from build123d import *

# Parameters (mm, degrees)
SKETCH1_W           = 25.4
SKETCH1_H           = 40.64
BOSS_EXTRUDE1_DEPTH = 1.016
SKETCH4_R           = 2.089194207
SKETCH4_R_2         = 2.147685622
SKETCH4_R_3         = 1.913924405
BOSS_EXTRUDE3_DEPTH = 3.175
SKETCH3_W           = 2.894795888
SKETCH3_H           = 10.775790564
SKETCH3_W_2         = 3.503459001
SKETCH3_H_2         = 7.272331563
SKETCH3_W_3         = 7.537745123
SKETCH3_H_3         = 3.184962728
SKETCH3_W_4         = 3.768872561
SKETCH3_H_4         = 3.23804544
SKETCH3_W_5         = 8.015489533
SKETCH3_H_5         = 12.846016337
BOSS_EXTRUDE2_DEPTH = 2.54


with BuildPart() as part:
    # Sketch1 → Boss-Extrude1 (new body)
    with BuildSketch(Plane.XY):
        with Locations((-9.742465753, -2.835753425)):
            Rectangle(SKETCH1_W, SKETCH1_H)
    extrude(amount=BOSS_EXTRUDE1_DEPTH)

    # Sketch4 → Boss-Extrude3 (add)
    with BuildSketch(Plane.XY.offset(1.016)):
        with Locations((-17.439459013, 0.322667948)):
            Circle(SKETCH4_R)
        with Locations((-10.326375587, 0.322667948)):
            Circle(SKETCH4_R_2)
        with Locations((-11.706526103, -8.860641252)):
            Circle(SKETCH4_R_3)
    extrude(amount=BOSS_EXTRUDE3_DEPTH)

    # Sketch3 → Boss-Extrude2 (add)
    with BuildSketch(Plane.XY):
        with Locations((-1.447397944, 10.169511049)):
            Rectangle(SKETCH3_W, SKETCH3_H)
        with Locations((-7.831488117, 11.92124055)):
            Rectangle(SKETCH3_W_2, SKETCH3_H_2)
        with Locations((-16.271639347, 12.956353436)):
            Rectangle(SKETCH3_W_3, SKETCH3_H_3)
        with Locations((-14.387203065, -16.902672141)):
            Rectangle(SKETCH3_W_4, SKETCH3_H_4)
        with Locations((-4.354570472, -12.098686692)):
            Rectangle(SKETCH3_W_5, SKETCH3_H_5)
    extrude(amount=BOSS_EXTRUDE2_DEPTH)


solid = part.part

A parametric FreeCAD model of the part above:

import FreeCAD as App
import Part
import Sketcher
from FreeCAD import Vector
Q = App.Units.Quantity

doc = App.newDocument("Part")
body = doc.addObject("PartDesign::Body", "Body")

sketch1 = body.newObject("Sketcher::SketchObject", "Sketch")
sketch1.AttachmentSupport = (doc.getObject("XY_Plane"), [""])
sketch1.MapMode = "FlatFace"
sketch1.addGeometry([
    Part.LineSegment(Vector(-22, 17, 0), Vector(-22, -23, 0)),
    Part.LineSegment(Vector(-22, -23, 0), Vector(3, -23, 0)),
    Part.LineSegment(Vector(3, -23, 0), Vector(3, 17, 0)),
    Part.LineSegment(Vector(3, 17, 0), Vector(-22, 17, 0)),
], False)
sketch1.addConstraint([
    Sketcher.Constraint("Coincident", 0, 2, 1, 1),
    Sketcher.Constraint("Coincident", 1, 2, 2, 1),
    Sketcher.Constraint("Coincident", 2, 2, 3, 1),
    Sketcher.Constraint("Coincident", 3, 2, 0, 1),
    Sketcher.Constraint("Vertical", 0),
    Sketcher.Constraint("Horizontal", 1),
    Sketcher.Constraint("Vertical", 2),
    Sketcher.Constraint("Horizontal", 3),
    Sketcher.Constraint("DistanceX", 1, 1, 1, 2, Q("1 in")),
    Sketcher.Constraint("DistanceY", 0, 2, 0, 1, Q("1.6 in")),
    Sketcher.Constraint("DistanceX", 0, 2, -1, 1, Q("22.442466 mm")),
    Sketcher.Constraint("DistanceY", 0, 2, -1, 1, Q("23.155753 mm")),
])
pad1 = body.newObject("PartDesign::Pad", "Pad")
pad1.Profile = sketch1
pad1.Length = Q("0.04 in")

sketch2 = body.newObject("Sketcher::SketchObject", "Sketch001")
sketch2.AttachmentSupport = (doc.getObject("XY_Plane"), [""])
sketch2.MapMode = "FlatFace"
sketch2.AttachmentOffset = App.Placement(Vector(0, 0, 0.04 * 25.4), App.Rotation())
sketch2.addGeometry([
    Part.Circle(Vector(-17.4, 0.3, 0), Vector(0, 0, 1), 2.1),
    Part.Circle(Vector(-10.3, 0.3, 0), Vector(0, 0, 1), 2.1),
    Part.Circle(Vector(-11.7, -8.9, 0), Vector(0, 0, 1), 1.9),
], False)
sketch2.addConstraint([
    Sketcher.Constraint("Horizontal", 0, 3, 1, 3),
    Sketcher.Constraint("Diameter", 0, Q("4.178388 mm")),
    Sketcher.Constraint("Diameter", 1, Q("4.295371 mm")),
    Sketcher.Constraint("Diameter", 2, Q("3.827849 mm")),
    Sketcher.Constraint("DistanceX", 0, 3, -1, 1, Q("17.439459 mm")),
    Sketcher.Constraint("DistanceY", 2, 3, -1, 1, Q("8.860641 mm")),
    Sketcher.Constraint("DistanceX", 2, 3, 1, 3, Q("1.380151 mm")),
    Sketcher.Constraint("DistanceY", 2, 3, 1, 3, Q("9.183309 mm")),
    Sketcher.Constraint("DistanceX", 1, 3, -1, 1, Q("10.326376 mm")),
])
pad2 = body.newObject("PartDesign::Pad", "Pad001")
pad2.Profile = sketch2
pad2.Length = Q("0.125 in")

sketch3 = body.newObject("Sketcher::SketchObject", "Sketch002")
sketch3.AttachmentSupport = (doc.getObject("XY_Plane"), [""])
sketch3.MapMode = "FlatFace"
sketch3.addGeometry([
    Part.LineSegment(Vector(-2.9, 15.6, 0), Vector(-2.9, 4.8, 0)),
    Part.LineSegment(Vector(-2.9, 4.8, 0), Vector(0, 4.8, 0)),
    Part.LineSegment(Vector(0, 4.8, 0), Vector(0, 15.6, 0)),
    Part.LineSegment(Vector(0, 15.6, 0), Vector(-2.9, 15.6, 0)),
    Part.LineSegment(Vector(-9.6, 15.6, 0), Vector(-9.6, 8.3, 0)),
    Part.LineSegment(Vector(-9.6, 8.3, 0), Vector(-6.1, 8.3, 0)),
    Part.LineSegment(Vector(-6.1, 8.3, 0), Vector(-6.1, 15.6, 0)),
    Part.LineSegment(Vector(-6.1, 15.6, 0), Vector(-9.6, 15.6, 0)),
    Part.LineSegment(Vector(-20, 14.5, 0), Vector(-20, 11.4, 0)),
    Part.LineSegment(Vector(-20, 11.4, 0), Vector(-12.5, 11.4, 0)),
    Part.LineSegment(Vector(-12.5, 11.4, 0), Vector(-12.5, 14.5, 0)),
    Part.LineSegment(Vector(-12.5, 14.5, 0), Vector(-20, 14.5, 0)),
    Part.LineSegment(Vector(-16.3, -15.3, 0), Vector(-16.3, -18.5, 0)),
    Part.LineSegment(Vector(-16.3, -18.5, 0), Vector(-12.5, -18.5, 0)),
    Part.LineSegment(Vector(-12.5, -18.5, 0), Vector(-12.5, -15.3, 0)),
    Part.LineSegment(Vector(-12.5, -15.3, 0), Vector(-16.3, -15.3, 0)),
    Part.LineSegment(Vector(-8.4, -5.7, 0), Vector(-8.4, -18.5, 0)),
    Part.LineSegment(Vector(-8.4, -18.5, 0), Vector(-0.3, -18.5, 0)),
    Part.LineSegment(Vector(-0.3, -18.5, 0), Vector(-0.3, -5.7, 0)),
    Part.LineSegment(Vector(-0.3, -5.7, 0), Vector(-8.4, -5.7, 0)),
], False)
sketch3.addConstraint([
    Sketcher.Constraint("Coincident", 0, 2, 1, 1),
    Sketcher.Constraint("Coincident", 1, 2, 2, 1),
    Sketcher.Constraint("Coincident", 2, 2, 3, 1),
    Sketcher.Constraint("Coincident", 3, 2, 0, 1),
    Sketcher.Constraint("Coincident", 4, 2, 5, 1),
    Sketcher.Constraint("Coincident", 5, 2, 6, 1),
    Sketcher.Constraint("Coincident", 6, 2, 7, 1),
    Sketcher.Constraint("Coincident", 7, 2, 4, 1),
    Sketcher.Constraint("Coincident", 8, 2, 9, 1),
    Sketcher.Constraint("Coincident", 9, 2, 10, 1),
    Sketcher.Constraint("Coincident", 10, 2, 11, 1),
    Sketcher.Constraint("Coincident", 11, 2, 8, 1),
    Sketcher.Constraint("Coincident", 12, 2, 13, 1),
    Sketcher.Constraint("Coincident", 13, 2, 14, 1),
    Sketcher.Constraint("Coincident", 14, 2, 15, 1),
    Sketcher.Constraint("Coincident", 15, 2, 12, 1),
    Sketcher.Constraint("Coincident", 16, 2, 17, 1),
    Sketcher.Constraint("Coincident", 17, 2, 18, 1),
    Sketcher.Constraint("Coincident", 18, 2, 19, 1),
    Sketcher.Constraint("Coincident", 19, 2, 16, 1),
    Sketcher.Constraint("Vertical", 0),
    Sketcher.Constraint("Horizontal", 1),
    Sketcher.Constraint("Vertical", 2),
    Sketcher.Constraint("Horizontal", 3),
    Sketcher.Constraint("Vertical", 4),
    Sketcher.Constraint("Horizontal", 5),
    Sketcher.Constraint("Vertical", 6),
    Sketcher.Constraint("Horizontal", 7),
    Sketcher.Constraint("Vertical", 8),
    Sketcher.Constraint("Horizontal", 9),
    Sketcher.Constraint("Vertical", 10),
    Sketcher.Constraint("Horizontal", 11),
    Sketcher.Constraint("Vertical", 12),
    Sketcher.Constraint("Horizontal", 13),
    Sketcher.Constraint("Vertical", 14),
    Sketcher.Constraint("Horizontal", 15),
    Sketcher.Constraint("Vertical", 16),
    Sketcher.Constraint("Horizontal", 17),
    Sketcher.Constraint("Vertical", 18),
    Sketcher.Constraint("Horizontal", 19),
    Sketcher.Constraint("PointOnObject", 1, 2, -2),
    Sketcher.Constraint("Horizontal", 3, 2, 6, 2),
    Sketcher.Constraint("Horizontal", 13, 2, 16, 2),
    Sketcher.Constraint("Vertical", 10, 2, 13, 2),
    Sketcher.Constraint("DistanceX", 5, 1, 5, 2, Q("3.503459 mm")),
    Sketcher.Constraint("DistanceX", 17, 1, 17, 2, Q("8.01549 mm")),
    Sketcher.Constraint("DistanceY", 0, 2, 0, 1, Q("10.775791 mm")),
    Sketcher.Constraint("DistanceY", 4, 2, 4, 1, Q("7.272332 mm")),
    Sketcher.Constraint("DistanceX", 1, 1, 1, 2, Q("2.894796 mm")),
    Sketcher.Constraint("DistanceX", 9, 1, 9, 2, Q("7.537745 mm")),
    Sketcher.Constraint("DistanceX", 13, 1, 13, 2, Q("3.768873 mm")),
    Sketcher.Constraint("DistanceY", 8, 2, 8, 1, Q("3.184963 mm")),
    Sketcher.Constraint("DistanceY", 12, 2, 12, 1, Q("3.238045 mm")),
    Sketcher.Constraint("DistanceY", 16, 2, 16, 1, Q("12.846016 mm")),
    Sketcher.Constraint("DistanceX", 5, 2, -1, 1, Q("6.079759 mm")),
    Sketcher.Constraint("DistanceX", 8, 2, -1, 1, Q("20.040512 mm")),
    Sketcher.Constraint("DistanceY", 14, 2, -1, 1, Q("15.283649 mm")),
    Sketcher.Constraint("DistanceY", 10, 2, 7, 2, Q("1.008572 mm")),
    Sketcher.Constraint("DistanceY", 12, 2, 0, 2, Q("23.303311 mm")),
    Sketcher.Constraint("DistanceX", 13, 2, 16, 2, Q("4.140452 mm")),
])
pad3 = body.newObject("PartDesign::Pad", "Pad002")
pad3.Profile = sketch3
pad3.Length = Q("0.1 in")

doc.recompute()
